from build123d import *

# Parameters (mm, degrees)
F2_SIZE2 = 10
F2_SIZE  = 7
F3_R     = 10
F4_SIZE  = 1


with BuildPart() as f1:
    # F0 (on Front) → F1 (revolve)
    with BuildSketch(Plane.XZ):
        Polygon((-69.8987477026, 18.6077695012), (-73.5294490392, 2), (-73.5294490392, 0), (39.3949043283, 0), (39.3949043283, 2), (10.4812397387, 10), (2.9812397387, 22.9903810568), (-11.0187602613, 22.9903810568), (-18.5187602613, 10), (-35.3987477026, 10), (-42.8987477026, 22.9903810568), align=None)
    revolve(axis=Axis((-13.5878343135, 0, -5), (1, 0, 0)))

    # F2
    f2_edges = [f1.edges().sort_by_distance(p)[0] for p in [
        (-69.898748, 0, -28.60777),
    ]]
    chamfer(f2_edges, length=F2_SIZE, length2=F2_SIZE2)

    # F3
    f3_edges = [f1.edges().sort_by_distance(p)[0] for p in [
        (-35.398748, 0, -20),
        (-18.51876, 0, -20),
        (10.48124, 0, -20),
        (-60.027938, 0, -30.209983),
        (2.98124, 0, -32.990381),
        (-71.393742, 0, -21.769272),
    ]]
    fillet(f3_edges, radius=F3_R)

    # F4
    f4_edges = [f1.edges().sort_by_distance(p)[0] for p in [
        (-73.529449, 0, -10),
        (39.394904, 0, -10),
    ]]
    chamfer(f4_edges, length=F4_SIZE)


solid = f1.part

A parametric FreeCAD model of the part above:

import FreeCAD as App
import Part
import Sketcher
from FreeCAD import Vector
Q = App.Units.Quantity


def edges_at(feature, points):
    """Names of the edges that pass closest to the given points."""
    edges = feature.Shape.Edges
    near = lambda p: min(range(len(edges)), key=lambda i: edges[i].distToShape(Part.Vertex(*p))[0])
    return sorted({f"Edge{near(p) + 1}" for p in points})

doc = App.newDocument("Part")
body = doc.addObject("PartDesign::Body", "Body")

# Sketch on XZ plane
sketch1 = body.newObject("Sketcher::SketchObject", "Sketch")
sketch1.AttachmentSupport = (doc.getObject("XZ_Plane"), [""])
sketch1.MapMode = "FlatFace"
sketch1.addGeometry([
    Part.LineSegment(Vector(-69.9, 18.6, 0), Vector(-73.5, 2, 0)),  # 0
    Part.LineSegment(Vector(-73.5, 2, 0), Vector(-73.5, 0, 0)),  # 1
    Part.LineSegment(Vector(-73.5, 0, 0), Vector(39.4, 0, 0)),  # 2
    Part.LineSegment(Vector(39.4, 0, 0), Vector(39.4, 2, 0)),  # 3
    Part.LineSegment(Vector(39.4, 2, 0), Vector(10.5, 10, 0)),  # 4
    Part.LineSegment(Vector(10.5, 10, 0), Vector(3, 23, 0)),  # 5
    Part.LineSegment(Vector(3, 23, 0), Vector(-11, 23, 0)),  # 6
    Part.LineSegment(Vector(-11, 23, 0), Vector(-18.5, 10, 0)),  # 7
    Part.LineSegment(Vector(-18.5, 10, 0), Vector(-35.4, 10, 0)),  # 8
    Part.LineSegment(Vector(-35.4, 10, 0), Vector(-42.9, 23, 0)),  # 9
    Part.LineSegment(Vector(-42.9, 23, 0), Vector(-69.9, 18.6, 0)),  # 10
], False)
sketch1.addGeometry(Part.LineSegment(Vector(-73.5, -5, 0), Vector(39.4, -5, 0)), True)  # axis
sketch1.addConstraint([
    Sketcher.Constraint("Coincident", 0, 2, 1, 1),
    Sketcher.Constraint("Coincident", 1, 2, 2, 1),
    Sketcher.Constraint("Coincident", 2, 2, 3, 1),
    Sketcher.Constraint("Coincident", 3, 2, 4, 1),
    Sketcher.Constraint("Coincident", 4, 2, 5, 1),
    Sketcher.Constraint("Coincident", 5, 2, 6, 1),
    Sketcher.Constraint("Coincident", 6, 2, 7, 1),
    Sketcher.Constraint("Coincident", 7, 2, 8, 1),
    Sketcher.Constraint("Coincident", 8, 2, 9, 1),
    Sketcher.Constraint("Coincident", 9, 2, 10, 1),
    Sketcher.Constraint("Coincident", 10, 2, 0, 1),
    Sketcher.Constraint("Vertical", 1),
    Sketcher.Constraint("Horizontal", 2),
    Sketcher.Constraint("Vertical", 3),
    Sketcher.Constraint("Horizontal", 6),
    Sketcher.Constraint("Horizontal", 8),
    Sketcher.Constraint("Horizontal", 11),
    Sketcher.Constraint("PointOnObject", 1, 2, -1),
    Sketcher.Constraint("Parallel", 5, 9),
    Sketcher.Constraint("Horizontal", 0, 2, 3, 2),
    Sketcher.Constraint("Horizontal", 4, 2, 7, 2),
    Sketcher.Constraint("Horizontal", 6, 2, 9, 2),
    Sketcher.Constraint("Vertical", 1, 2, 11, 1),
    Sketcher.Constraint("Vertical", 3, 2, 11, 2),
    Sketcher.Constraint("Equal", 5, 7),
    Sketcher.Constraint("DistanceX", 6, 2, 6, 1, Q("14 mm")),
    Sketcher.Constraint("DistanceY", 1, 2, 1, 1, Q("2 mm")),
    Sketcher.Constraint("Angle", 5, Q("120 deg")),
    Sketcher.Constraint("Distance", 0, Q("17 mm")),
    Sketcher.Constraint("Distance", 4, Q("30 mm")),
    Sketcher.Constraint("Distance", 5, Q("15 mm")),
    Sketcher.Constraint("DistanceY", -1, 1, 4, 2, Q("10 mm")),
    Sketcher.Constraint("DistanceY", 11, 1, -1, 1, Q("5 mm")),
    Sketcher.Constraint("DistanceX", 10, 2, 9, 2, Q("27 mm")),
    Sketcher.Constraint("DistanceX", 0, 2, 8, 2, Q("38.130701 mm")),
    Sketcher.Constraint("DistanceX", 2, 1, 2, 2, Q("112.924353 mm")),
    Sketcher.Constraint("DistanceX", 0, 2, -1, 1, Q("73.529449 mm")),
])
revolution = body.newObject("PartDesign::Revolution", "Revolution")
revolution.Profile = sketch1
revolution.ReferenceAxis = (sketch1, ["Axis0"])
revolution.Angle = 360
doc.recompute()

chamfer = body.newObject("PartDesign::Chamfer", "Chamfer")
chamfer.Base = (revolution, edges_at(revolution, [(-69.899, 0, -28.608)]))
chamfer.ChamferType = "Two distances"
chamfer.Size = 7
chamfer.Size2 = 10
doc.recompute()

fillet = body.newObject("PartDesign::Fillet", "Fillet")
fillet.Base = (chamfer, edges_at(chamfer, [
    (-35.399, 0, -20),
    (-18.519, 0, -20),
    (10.481, 0, -20),
    (-60.028, 0, -30.21),
    (2.981, 0, -32.99),
    (-71.394, 0, -21.769),
]))
fillet.Radius = 10
doc.recompute()

chamfer2 = body.newObject("PartDesign::Chamfer", "Chamfer001")
chamfer2.Base = (fillet, edges_at(fillet, [(-73.529, 0, -10), (39.395, 0, -10)]))
chamfer2.Size = 1

doc.recompute()
